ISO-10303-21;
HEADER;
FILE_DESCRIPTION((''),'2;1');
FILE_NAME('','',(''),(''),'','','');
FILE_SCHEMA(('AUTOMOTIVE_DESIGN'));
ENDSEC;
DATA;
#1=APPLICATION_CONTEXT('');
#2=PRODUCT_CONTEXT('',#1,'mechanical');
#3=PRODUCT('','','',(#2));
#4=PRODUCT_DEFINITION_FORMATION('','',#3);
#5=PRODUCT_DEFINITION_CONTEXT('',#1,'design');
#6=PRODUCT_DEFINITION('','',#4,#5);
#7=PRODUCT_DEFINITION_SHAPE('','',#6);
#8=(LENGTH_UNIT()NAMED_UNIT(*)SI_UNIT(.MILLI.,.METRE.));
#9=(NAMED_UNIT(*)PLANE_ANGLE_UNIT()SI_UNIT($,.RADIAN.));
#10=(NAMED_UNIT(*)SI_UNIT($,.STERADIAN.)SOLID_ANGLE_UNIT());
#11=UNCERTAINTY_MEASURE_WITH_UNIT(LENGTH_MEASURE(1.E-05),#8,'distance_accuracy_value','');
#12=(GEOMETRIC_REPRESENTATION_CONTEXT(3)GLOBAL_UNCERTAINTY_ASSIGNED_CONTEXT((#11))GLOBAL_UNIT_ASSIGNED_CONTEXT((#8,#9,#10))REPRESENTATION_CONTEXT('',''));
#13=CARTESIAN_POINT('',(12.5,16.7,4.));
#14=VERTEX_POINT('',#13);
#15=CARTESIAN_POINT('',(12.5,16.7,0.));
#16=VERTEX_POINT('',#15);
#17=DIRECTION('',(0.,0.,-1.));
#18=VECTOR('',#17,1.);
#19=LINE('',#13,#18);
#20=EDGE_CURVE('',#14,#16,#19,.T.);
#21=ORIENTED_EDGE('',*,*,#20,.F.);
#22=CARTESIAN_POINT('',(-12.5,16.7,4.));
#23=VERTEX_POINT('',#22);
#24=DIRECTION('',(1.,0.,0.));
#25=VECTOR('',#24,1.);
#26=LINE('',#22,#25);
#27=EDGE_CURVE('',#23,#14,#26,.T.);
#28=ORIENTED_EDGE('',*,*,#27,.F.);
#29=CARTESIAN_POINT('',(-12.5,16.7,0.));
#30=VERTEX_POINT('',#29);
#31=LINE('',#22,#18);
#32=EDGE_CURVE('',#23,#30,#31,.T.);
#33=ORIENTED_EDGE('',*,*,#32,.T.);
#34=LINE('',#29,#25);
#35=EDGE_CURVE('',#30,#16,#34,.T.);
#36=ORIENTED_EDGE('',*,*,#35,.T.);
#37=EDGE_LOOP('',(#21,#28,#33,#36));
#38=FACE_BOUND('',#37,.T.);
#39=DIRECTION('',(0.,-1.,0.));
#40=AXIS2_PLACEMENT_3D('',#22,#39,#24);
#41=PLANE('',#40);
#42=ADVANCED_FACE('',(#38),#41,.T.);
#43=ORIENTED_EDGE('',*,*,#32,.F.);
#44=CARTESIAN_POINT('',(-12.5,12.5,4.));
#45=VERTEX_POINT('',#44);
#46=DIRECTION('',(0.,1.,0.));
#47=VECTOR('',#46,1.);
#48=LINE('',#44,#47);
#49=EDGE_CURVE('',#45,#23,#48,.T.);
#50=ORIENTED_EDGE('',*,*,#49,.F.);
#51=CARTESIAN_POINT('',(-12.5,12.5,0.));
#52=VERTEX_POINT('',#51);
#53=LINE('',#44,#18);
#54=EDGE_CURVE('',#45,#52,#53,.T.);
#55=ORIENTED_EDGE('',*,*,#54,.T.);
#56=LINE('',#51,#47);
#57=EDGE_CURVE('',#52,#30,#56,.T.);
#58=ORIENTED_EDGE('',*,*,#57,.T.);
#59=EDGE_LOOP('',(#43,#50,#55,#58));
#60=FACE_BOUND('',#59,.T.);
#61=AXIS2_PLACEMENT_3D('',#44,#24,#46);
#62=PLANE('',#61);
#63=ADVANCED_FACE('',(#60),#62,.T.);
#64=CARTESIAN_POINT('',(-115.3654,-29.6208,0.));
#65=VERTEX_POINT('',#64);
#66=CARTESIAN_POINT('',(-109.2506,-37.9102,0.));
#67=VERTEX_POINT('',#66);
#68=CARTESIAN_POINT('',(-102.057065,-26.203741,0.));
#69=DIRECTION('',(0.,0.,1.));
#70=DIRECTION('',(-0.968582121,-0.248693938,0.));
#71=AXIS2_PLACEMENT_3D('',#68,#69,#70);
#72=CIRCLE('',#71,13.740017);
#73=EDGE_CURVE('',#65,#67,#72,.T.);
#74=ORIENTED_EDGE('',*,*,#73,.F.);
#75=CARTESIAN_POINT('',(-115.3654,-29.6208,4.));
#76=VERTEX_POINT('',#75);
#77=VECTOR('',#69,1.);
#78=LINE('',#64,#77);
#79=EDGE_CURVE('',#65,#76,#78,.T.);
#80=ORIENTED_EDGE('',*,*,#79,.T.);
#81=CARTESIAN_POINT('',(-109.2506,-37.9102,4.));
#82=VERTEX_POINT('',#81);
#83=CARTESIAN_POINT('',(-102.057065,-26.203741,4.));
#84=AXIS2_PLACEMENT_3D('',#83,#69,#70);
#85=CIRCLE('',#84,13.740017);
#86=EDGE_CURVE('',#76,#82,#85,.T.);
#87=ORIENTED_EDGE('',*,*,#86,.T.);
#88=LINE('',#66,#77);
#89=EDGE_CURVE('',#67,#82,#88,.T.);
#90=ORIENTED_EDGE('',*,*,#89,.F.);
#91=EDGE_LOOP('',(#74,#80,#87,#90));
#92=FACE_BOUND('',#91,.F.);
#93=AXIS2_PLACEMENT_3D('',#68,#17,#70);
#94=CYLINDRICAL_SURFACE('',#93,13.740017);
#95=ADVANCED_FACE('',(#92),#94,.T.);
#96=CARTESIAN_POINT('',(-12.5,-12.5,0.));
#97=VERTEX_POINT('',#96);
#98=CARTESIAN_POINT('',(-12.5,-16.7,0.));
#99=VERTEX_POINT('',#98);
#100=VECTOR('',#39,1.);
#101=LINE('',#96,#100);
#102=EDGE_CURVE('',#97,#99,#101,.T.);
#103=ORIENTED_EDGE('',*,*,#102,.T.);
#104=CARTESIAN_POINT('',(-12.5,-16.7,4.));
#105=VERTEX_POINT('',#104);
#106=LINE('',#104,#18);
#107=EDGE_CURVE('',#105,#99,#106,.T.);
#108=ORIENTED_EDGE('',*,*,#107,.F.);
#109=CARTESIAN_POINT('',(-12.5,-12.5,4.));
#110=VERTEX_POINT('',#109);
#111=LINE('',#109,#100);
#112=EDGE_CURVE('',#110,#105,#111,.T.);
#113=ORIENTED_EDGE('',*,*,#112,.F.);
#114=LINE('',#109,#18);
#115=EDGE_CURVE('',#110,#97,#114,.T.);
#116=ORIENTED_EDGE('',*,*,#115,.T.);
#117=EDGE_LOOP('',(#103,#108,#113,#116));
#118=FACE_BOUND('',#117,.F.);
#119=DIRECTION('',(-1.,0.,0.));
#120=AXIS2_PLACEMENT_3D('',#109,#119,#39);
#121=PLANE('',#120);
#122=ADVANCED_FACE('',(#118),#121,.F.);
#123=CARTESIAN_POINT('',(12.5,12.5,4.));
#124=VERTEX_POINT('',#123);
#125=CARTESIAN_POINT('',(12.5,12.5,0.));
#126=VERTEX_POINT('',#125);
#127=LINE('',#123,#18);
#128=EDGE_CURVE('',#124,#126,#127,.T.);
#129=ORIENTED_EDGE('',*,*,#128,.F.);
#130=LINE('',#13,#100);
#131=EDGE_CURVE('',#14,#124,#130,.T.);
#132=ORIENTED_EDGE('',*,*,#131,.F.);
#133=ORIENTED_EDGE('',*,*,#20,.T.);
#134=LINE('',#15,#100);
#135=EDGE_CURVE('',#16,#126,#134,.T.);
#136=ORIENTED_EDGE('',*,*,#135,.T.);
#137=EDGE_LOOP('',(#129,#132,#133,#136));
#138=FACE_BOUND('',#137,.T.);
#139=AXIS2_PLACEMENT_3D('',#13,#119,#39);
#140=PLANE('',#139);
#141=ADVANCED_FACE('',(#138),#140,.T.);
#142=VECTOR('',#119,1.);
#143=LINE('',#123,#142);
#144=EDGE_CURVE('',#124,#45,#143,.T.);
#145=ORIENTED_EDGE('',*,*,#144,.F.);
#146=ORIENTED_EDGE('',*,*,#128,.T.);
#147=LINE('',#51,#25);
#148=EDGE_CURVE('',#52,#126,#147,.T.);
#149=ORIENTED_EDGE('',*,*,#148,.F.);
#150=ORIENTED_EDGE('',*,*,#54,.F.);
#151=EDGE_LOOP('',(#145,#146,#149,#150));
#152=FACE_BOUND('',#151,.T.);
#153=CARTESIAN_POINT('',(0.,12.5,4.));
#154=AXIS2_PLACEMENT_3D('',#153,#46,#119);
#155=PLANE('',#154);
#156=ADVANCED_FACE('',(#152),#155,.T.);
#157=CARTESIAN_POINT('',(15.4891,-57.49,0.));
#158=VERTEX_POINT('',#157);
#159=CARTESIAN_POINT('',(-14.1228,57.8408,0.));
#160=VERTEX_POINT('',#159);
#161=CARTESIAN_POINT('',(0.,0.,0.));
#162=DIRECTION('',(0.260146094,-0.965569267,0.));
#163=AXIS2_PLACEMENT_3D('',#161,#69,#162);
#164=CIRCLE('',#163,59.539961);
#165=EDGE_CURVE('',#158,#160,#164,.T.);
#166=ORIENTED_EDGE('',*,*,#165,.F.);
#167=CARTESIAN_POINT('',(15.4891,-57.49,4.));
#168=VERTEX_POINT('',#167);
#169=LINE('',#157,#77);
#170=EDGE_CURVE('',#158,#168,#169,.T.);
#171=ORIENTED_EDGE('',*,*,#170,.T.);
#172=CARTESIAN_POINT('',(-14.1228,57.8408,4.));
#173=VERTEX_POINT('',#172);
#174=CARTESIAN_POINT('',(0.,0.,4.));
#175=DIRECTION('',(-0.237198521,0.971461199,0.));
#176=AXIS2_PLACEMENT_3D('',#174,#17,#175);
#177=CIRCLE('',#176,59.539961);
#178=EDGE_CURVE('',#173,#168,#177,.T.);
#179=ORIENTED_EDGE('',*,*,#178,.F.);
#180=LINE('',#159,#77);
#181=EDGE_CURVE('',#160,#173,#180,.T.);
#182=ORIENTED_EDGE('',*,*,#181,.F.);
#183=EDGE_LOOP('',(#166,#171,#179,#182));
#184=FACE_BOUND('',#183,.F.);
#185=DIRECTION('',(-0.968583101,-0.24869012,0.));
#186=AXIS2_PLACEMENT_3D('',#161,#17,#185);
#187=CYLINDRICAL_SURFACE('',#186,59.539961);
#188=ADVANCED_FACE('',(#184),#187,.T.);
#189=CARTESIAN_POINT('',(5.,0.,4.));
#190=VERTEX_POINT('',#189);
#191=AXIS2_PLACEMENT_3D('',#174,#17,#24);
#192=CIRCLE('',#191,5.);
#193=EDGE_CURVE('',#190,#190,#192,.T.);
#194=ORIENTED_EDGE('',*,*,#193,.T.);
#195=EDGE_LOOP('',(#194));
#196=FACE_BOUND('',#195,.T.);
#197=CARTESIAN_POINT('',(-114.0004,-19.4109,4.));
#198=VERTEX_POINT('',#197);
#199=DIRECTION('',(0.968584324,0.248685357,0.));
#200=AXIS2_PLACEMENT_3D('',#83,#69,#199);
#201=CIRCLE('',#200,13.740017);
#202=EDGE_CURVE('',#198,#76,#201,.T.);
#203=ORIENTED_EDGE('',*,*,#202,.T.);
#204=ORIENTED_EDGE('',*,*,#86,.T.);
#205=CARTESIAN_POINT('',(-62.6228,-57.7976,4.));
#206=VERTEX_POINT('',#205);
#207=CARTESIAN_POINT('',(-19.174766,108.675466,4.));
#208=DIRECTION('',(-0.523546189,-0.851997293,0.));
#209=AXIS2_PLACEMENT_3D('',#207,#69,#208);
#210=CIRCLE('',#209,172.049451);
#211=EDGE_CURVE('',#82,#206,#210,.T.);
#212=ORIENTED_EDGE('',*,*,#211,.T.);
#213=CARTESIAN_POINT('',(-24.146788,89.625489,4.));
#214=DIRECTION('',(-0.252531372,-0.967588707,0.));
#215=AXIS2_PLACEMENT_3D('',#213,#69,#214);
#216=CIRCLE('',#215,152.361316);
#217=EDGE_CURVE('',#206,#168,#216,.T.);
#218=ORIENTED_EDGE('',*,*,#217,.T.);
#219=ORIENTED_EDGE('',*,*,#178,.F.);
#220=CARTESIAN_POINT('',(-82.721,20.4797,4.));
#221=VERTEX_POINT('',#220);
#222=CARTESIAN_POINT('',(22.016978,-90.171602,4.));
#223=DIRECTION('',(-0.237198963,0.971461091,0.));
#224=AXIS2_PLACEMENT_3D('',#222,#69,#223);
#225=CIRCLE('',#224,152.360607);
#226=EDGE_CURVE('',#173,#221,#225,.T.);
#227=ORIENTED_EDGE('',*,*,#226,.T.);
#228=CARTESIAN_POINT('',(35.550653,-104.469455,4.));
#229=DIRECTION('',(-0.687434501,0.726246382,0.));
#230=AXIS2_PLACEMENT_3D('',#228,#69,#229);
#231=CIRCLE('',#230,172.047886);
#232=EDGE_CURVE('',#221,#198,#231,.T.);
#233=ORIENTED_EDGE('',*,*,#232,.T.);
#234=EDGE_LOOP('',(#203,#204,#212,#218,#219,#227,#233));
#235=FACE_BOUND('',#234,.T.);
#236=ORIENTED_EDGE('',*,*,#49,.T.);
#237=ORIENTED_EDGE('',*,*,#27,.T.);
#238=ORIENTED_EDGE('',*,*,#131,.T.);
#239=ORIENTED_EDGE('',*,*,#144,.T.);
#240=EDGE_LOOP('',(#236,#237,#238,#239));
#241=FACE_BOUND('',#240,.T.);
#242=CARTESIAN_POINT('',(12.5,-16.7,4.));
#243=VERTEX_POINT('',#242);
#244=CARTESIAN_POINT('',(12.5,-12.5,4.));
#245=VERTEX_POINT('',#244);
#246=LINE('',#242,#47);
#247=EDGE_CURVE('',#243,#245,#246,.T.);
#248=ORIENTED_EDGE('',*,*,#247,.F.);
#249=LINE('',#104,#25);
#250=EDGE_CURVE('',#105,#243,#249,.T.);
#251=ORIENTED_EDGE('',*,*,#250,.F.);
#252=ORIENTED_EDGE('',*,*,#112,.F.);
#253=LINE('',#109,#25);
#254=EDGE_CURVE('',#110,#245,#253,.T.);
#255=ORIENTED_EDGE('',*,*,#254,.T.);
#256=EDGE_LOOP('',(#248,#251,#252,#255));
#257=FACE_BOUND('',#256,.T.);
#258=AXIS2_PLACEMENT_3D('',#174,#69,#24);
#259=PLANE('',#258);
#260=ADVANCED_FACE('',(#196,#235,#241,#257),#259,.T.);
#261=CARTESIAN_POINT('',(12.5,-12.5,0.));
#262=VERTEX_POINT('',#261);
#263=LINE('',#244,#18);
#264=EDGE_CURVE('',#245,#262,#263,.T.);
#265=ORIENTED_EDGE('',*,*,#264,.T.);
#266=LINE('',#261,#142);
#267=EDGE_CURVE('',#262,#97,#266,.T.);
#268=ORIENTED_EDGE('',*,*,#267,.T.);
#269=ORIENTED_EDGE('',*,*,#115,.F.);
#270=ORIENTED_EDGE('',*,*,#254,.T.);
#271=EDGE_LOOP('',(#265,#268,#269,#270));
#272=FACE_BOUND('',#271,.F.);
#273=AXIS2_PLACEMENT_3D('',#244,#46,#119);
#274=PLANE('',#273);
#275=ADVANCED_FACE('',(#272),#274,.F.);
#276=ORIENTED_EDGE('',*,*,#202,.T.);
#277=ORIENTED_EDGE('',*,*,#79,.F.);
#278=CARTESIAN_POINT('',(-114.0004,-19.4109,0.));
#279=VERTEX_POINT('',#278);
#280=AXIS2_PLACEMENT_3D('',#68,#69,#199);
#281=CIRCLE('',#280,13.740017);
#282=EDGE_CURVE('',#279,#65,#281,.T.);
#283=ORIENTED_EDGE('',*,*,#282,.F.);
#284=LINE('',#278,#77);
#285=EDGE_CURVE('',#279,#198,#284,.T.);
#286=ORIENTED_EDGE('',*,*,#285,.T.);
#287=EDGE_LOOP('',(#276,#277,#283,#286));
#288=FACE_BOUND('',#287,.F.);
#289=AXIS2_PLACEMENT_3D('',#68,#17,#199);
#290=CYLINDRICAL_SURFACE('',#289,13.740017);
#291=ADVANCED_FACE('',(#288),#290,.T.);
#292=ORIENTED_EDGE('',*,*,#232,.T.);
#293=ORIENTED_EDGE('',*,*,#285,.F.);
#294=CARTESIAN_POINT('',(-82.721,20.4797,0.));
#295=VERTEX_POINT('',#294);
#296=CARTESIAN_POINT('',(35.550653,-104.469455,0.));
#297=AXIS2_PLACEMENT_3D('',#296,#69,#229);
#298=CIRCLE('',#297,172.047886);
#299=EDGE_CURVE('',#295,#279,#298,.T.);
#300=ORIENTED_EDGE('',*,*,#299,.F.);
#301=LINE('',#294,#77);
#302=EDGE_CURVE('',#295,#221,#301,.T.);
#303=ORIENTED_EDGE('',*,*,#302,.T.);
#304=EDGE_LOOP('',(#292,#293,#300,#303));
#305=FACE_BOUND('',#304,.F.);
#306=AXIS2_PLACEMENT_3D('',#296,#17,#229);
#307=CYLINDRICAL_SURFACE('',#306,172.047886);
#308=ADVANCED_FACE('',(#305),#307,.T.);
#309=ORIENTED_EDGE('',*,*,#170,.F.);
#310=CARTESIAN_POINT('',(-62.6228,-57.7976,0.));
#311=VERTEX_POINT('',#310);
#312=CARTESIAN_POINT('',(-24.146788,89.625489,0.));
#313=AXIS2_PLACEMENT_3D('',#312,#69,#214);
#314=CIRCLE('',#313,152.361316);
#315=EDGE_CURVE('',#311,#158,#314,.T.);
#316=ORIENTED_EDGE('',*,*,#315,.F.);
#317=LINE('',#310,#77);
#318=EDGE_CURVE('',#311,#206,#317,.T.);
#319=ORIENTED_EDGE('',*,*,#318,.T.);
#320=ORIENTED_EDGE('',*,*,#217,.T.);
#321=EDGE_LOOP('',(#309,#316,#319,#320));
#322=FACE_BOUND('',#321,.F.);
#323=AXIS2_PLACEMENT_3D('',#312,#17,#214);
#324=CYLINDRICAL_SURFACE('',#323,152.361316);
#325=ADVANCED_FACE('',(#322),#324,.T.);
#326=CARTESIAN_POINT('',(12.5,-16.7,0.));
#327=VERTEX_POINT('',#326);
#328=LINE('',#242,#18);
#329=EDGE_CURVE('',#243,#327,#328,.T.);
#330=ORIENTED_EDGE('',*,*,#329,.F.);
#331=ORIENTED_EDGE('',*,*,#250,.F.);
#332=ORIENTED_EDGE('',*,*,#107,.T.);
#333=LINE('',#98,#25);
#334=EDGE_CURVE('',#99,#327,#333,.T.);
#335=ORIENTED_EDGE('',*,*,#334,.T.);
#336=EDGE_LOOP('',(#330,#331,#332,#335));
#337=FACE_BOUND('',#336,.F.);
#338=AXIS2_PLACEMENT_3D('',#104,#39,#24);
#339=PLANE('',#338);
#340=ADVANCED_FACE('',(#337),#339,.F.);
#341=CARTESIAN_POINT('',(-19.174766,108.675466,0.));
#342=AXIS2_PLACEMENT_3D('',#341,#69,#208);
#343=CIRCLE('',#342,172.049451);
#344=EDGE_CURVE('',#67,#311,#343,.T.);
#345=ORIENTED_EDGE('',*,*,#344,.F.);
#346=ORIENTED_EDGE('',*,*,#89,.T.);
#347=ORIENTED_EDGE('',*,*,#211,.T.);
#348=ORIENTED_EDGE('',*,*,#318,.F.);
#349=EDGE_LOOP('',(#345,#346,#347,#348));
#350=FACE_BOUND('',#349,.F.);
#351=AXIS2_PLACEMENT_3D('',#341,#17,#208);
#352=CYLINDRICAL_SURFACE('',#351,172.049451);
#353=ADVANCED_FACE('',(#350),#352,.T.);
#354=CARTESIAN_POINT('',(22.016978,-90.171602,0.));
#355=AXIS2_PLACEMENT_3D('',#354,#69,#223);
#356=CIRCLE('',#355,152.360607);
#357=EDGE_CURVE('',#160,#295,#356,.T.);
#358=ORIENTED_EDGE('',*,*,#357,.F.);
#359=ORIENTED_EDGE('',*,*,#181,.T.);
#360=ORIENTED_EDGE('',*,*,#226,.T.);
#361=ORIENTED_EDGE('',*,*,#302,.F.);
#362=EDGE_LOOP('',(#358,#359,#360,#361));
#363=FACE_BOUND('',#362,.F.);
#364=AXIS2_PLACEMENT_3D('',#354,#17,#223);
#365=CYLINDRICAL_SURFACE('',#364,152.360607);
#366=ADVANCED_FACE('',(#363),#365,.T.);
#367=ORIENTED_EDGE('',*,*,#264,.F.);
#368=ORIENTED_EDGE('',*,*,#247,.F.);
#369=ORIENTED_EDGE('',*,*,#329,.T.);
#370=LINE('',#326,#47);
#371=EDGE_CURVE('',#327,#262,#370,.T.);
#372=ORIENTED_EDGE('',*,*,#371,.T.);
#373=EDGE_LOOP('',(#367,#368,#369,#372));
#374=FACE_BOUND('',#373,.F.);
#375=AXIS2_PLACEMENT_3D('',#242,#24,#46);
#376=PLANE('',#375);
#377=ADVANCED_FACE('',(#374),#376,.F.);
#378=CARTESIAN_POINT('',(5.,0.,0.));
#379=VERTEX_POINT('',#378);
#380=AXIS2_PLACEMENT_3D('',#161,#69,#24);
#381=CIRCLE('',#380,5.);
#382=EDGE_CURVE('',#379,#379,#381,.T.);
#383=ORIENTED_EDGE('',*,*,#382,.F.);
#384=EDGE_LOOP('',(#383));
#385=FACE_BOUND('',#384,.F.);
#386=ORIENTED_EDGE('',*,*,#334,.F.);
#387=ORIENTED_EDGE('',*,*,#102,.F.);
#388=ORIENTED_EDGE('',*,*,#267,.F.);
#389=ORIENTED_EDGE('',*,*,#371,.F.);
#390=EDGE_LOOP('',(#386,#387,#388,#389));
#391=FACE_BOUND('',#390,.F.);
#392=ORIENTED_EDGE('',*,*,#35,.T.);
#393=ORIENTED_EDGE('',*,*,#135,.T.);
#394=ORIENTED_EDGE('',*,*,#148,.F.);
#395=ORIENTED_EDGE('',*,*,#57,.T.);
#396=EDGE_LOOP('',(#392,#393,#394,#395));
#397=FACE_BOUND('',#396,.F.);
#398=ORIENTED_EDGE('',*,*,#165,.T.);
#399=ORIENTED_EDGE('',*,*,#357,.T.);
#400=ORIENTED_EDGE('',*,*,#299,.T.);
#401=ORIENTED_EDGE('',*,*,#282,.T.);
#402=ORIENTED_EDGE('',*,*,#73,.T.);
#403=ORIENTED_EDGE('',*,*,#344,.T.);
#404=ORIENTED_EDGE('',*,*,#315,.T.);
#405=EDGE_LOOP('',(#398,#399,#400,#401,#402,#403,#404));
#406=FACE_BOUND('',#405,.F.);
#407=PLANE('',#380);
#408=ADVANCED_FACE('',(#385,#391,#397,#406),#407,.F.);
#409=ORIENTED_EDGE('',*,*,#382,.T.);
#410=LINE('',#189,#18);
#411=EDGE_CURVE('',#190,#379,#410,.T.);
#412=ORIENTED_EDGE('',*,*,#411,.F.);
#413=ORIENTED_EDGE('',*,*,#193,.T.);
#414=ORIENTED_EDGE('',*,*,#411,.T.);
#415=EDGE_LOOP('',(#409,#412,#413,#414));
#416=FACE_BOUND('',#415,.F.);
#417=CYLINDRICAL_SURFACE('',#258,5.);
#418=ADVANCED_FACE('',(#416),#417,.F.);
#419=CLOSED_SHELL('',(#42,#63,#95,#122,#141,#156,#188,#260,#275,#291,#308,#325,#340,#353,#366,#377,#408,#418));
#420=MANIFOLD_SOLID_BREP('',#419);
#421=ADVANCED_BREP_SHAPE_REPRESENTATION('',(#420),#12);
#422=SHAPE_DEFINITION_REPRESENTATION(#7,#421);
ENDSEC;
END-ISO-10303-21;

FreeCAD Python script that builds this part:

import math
import FreeCAD as App
import Part
import Sketcher
Q = App.Units.Quantity

doc = App.newDocument("Part")
params = doc.addObject("Spreadsheet::Sheet", "Params")
for row, (alias, value) in enumerate([
    ("sketch1_radius", "59.54 mm"),
    ("sketch1_radius2", "13.74 mm"),
    ("pad1_length", "4 mm"),
    ("sketch2_diameter", "10 mm"),
    ("sketch2_width", "25 mm"),
    ("sketch2_height", "4.2 mm"),
    ("pocket1_length", "4 mm"),
], start=1):
    params.set(f"A{row}", alias)
    params.set(f"B{row}", "=" + value)
    params.setAlias(f"B{row}", alias)

body = doc.addObject("PartDesign::Body", "Body")

# Sketch on XY plane
sketch1 = body.newObject("Sketcher::SketchObject", "Sketch")
sketch1.AttachmentSupport = (doc.getObject("XY_Plane"), [""])
sketch1.MapMode = "FlatFace"
sketch1.addGeometry([
    Part.ArcOfCircle(Part.Circle(App.Vector(0, 0, 0), App.Vector(0, 0, 1), 59.539961), math.radians(-74.921269), math.radians(103.721254)),  # 0
    Part.ArcOfCircle(Part.Circle(App.Vector(22.0169, -90.1714, 0), App.Vector(0, 0, 1), 152.360393), math.radians(103.721269), math.radians(133.427421)),  # 1
    Part.ArcOfCircle(Part.Circle(App.Vector(35.550653, -104.469455, 0), App.Vector(0, 0, 1), 172.047886), math.radians(133.427369), math.radians(150.370542)),  # 2
    Part.ArcOfCircle(Part.Circle(App.Vector(-102.0571, -26.2038, 0), App.Vector(0, 0, 1), 13.740065), math.radians(150.370409), math.radians(194.400038)),  # 3
    Part.ArcOfCircle(Part.Circle(App.Vector(-102.0571, -26.2038, 0), App.Vector(0, 0, 1), 13.740065), math.radians(-165.599962), math.radians(-121.570431)),  # 4
    Part.ArcOfCircle(Part.Circle(App.Vector(-19.1748, 108.6754, 0), App.Vector(0, 0, 1), 172.049376), math.radians(-121.570427), math.radians(-104.627403)),  # 5
    Part.ArcOfCircle(Part.Circle(App.Vector(-24.1469, 89.6246, 0), App.Vector(0, 0, 1), 152.360428), math.radians(-104.6274), math.radians(-74.921263)),  # 6
], False)
sketch1.addConstraint([
    Sketcher.Constraint("Coincident", 0, 2, 1, 1),
    Sketcher.Constraint("Coincident", 1, 2, 2, 1),
    Sketcher.Constraint("Coincident", 2, 2, 3, 1),
    Sketcher.Constraint("Coincident", 3, 2, 4, 1),
    Sketcher.Constraint("Coincident", 4, 2, 5, 1),
    Sketcher.Constraint("Coincident", 5, 2, 6, 1),
    Sketcher.Constraint("Coincident", 6, 2, 0, 1),
    Sketcher.Constraint("Coincident", 0, 3, -1, 1),
    Sketcher.Constraint("Coincident", 4, 3, 3, 3),
    Sketcher.Constraint("Radius", 0, Q("59.54 mm")),
    Sketcher.Constraint("Radius", 3, Q("13.74 mm")),
    Sketcher.Constraint("Radius", 2, Q("172.048 mm")),
    Sketcher.Constraint("Radius", 1, Q("152.3604 mm")),
    Sketcher.Constraint("Radius", 5, Q("172.0494 mm")),
    Sketcher.Constraint("Radius", 6, Q("152.3604 mm")),
    Sketcher.Constraint("DistanceY", 6, 2, -1, 1, Q("57.49 mm")),
    Sketcher.Constraint("DistanceY", 3, 2, 2, 2, Q("10.21 mm")),
    Sketcher.Constraint("DistanceY", 4, 2, 1, 2, Q("58.39 mm")),
    Sketcher.Constraint("DistanceX", -1, 1, 1, 3, Q("22.017 mm")),
    Sketcher.Constraint("DistanceX", 3, 3, -1, 1, Q("102.057 mm")),
    Sketcher.Constraint("DistanceX", 6, 3, -1, 1, Q("24.147 mm")),
    Sketcher.Constraint("DistanceX", 1, 2, -1, 1, Q("82.721 mm")),
    Sketcher.Constraint("DistanceY", 2, 2, -1, 1, Q("19.411 mm")),
    Sketcher.Constraint("DistanceY", 2, 3, 1, 3, Q("14.298 mm")),
    Sketcher.Constraint("DistanceX", 6, 3, 0, 2, Q("10.024 mm")),
    Sketcher.Constraint("DistanceX", 5, 2, 6, 2, Q("78.112 mm")),
])
sketch1.setExpression("Constraints[9]", "Params.sketch1_radius")
sketch1.setExpression("Constraints[10]", "Params.sketch1_radius2")
pad1 = body.newObject("PartDesign::Pad", "Pad")
pad1.Profile = sketch1
pad1.setExpression("Length", "Params.pad1_length")

# Sketch on XY plane
sketch2 = body.newObject("Sketcher::SketchObject", "Sketch001")
sketch2.AttachmentSupport = (doc.getObject("XY_Plane"), [""])
sketch2.MapMode = "FlatFace"
sketch2.AttachmentOffset = App.Placement(App.Vector(0, 0, 4), App.Rotation())
sketch2.addGeometry([
    Part.Circle(App.Vector(0, 0, 0), App.Vector(0, 0, 1), 5),  # 0
    Part.LineSegment(App.Vector(-12.5, 12.5, 0), App.Vector(12.5, 12.5, 0)),  # 1
    Part.LineSegment(App.Vector(12.5, 12.5, 0), App.Vector(12.5, 16.7, 0)),  # 2
    Part.LineSegment(App.Vector(12.5, 16.7, 0), App.Vector(-12.5, 16.7, 0)),  # 3
    Part.LineSegment(App.Vector(-12.5, 16.7, 0), App.Vector(-12.5, 12.5, 0)),  # 4
    Part.LineSegment(App.Vector(12.5, -12.5, 0), App.Vector(-12.5, -12.5, 0)),  # 5
    Part.LineSegment(App.Vector(-12.5, -12.5, 0), App.Vector(-12.5, -16.7, 0)),  # 6
    Part.LineSegment(App.Vector(-12.5, -16.7, 0), App.Vector(12.5, -16.7, 0)),  # 7
    Part.LineSegment(App.Vector(12.5, -16.7, 0), App.Vector(12.5, -12.5, 0)),  # 8
], False)
sketch2.addConstraint([
    Sketcher.Constraint("Coincident", 1, 2, 2, 1),
    Sketcher.Constraint("Coincident", 2, 2, 3, 1),
    Sketcher.Constraint("Coincident", 3, 2, 4, 1),
    Sketcher.Constraint("Coincident", 4, 2, 1, 1),
    Sketcher.Constraint("Coincident", 5, 2, 6, 1),
    Sketcher.Constraint("Coincident", 6, 2, 7, 1),
    Sketcher.Constraint("Coincident", 7, 2, 8, 1),
    Sketcher.Constraint("Coincident", 8, 2, 5, 1),
    Sketcher.Constraint("Horizontal", 1),
    Sketcher.Constraint("Vertical", 2),
    Sketcher.Constraint("Horizontal", 3),
    Sketcher.Constraint("Vertical", 4),
    Sketcher.Constraint("Horizontal", 5),
    Sketcher.Constraint("Vertical", 6),
    Sketcher.Constraint("Horizontal", 7),
    Sketcher.Constraint("Vertical", 8),
    Sketcher.Constraint("Coincident", 0, 3, -1, 1),
    Sketcher.Constraint("Symmetric", 1, 2, 5, 2, -1, 1),
    Sketcher.Constraint("Symmetric", 3, 2, 7, 2, -1, 1),
    Sketcher.Constraint("Vertical", 4, 2, 5, 2),
    Sketcher.Constraint("Diameter", 0, Q("10 mm")),
    Sketcher.Constraint("DistanceX", 1, 1, 1, 2, Q("25 mm")),
    Sketcher.Constraint("DistanceY", 2, 1, 2, 2, Q("4.2 mm")),
    Sketcher.Constraint("DistanceY", 5, 2, 4, 2, Q("25 mm")),
])
sketch2.setExpression("Constraints[20]", "Params.sketch2_diameter")
sketch2.setExpression("Constraints[21]", "Params.sketch2_width")
sketch2.setExpression("Constraints[22]", "Params.sketch2_height")
pocket1 = body.newObject("PartDesign::Pocket", "Pocket")
pocket1.Profile = sketch2
pocket1.setExpression("Length", "Params.pocket1_length")

doc.recompute()
